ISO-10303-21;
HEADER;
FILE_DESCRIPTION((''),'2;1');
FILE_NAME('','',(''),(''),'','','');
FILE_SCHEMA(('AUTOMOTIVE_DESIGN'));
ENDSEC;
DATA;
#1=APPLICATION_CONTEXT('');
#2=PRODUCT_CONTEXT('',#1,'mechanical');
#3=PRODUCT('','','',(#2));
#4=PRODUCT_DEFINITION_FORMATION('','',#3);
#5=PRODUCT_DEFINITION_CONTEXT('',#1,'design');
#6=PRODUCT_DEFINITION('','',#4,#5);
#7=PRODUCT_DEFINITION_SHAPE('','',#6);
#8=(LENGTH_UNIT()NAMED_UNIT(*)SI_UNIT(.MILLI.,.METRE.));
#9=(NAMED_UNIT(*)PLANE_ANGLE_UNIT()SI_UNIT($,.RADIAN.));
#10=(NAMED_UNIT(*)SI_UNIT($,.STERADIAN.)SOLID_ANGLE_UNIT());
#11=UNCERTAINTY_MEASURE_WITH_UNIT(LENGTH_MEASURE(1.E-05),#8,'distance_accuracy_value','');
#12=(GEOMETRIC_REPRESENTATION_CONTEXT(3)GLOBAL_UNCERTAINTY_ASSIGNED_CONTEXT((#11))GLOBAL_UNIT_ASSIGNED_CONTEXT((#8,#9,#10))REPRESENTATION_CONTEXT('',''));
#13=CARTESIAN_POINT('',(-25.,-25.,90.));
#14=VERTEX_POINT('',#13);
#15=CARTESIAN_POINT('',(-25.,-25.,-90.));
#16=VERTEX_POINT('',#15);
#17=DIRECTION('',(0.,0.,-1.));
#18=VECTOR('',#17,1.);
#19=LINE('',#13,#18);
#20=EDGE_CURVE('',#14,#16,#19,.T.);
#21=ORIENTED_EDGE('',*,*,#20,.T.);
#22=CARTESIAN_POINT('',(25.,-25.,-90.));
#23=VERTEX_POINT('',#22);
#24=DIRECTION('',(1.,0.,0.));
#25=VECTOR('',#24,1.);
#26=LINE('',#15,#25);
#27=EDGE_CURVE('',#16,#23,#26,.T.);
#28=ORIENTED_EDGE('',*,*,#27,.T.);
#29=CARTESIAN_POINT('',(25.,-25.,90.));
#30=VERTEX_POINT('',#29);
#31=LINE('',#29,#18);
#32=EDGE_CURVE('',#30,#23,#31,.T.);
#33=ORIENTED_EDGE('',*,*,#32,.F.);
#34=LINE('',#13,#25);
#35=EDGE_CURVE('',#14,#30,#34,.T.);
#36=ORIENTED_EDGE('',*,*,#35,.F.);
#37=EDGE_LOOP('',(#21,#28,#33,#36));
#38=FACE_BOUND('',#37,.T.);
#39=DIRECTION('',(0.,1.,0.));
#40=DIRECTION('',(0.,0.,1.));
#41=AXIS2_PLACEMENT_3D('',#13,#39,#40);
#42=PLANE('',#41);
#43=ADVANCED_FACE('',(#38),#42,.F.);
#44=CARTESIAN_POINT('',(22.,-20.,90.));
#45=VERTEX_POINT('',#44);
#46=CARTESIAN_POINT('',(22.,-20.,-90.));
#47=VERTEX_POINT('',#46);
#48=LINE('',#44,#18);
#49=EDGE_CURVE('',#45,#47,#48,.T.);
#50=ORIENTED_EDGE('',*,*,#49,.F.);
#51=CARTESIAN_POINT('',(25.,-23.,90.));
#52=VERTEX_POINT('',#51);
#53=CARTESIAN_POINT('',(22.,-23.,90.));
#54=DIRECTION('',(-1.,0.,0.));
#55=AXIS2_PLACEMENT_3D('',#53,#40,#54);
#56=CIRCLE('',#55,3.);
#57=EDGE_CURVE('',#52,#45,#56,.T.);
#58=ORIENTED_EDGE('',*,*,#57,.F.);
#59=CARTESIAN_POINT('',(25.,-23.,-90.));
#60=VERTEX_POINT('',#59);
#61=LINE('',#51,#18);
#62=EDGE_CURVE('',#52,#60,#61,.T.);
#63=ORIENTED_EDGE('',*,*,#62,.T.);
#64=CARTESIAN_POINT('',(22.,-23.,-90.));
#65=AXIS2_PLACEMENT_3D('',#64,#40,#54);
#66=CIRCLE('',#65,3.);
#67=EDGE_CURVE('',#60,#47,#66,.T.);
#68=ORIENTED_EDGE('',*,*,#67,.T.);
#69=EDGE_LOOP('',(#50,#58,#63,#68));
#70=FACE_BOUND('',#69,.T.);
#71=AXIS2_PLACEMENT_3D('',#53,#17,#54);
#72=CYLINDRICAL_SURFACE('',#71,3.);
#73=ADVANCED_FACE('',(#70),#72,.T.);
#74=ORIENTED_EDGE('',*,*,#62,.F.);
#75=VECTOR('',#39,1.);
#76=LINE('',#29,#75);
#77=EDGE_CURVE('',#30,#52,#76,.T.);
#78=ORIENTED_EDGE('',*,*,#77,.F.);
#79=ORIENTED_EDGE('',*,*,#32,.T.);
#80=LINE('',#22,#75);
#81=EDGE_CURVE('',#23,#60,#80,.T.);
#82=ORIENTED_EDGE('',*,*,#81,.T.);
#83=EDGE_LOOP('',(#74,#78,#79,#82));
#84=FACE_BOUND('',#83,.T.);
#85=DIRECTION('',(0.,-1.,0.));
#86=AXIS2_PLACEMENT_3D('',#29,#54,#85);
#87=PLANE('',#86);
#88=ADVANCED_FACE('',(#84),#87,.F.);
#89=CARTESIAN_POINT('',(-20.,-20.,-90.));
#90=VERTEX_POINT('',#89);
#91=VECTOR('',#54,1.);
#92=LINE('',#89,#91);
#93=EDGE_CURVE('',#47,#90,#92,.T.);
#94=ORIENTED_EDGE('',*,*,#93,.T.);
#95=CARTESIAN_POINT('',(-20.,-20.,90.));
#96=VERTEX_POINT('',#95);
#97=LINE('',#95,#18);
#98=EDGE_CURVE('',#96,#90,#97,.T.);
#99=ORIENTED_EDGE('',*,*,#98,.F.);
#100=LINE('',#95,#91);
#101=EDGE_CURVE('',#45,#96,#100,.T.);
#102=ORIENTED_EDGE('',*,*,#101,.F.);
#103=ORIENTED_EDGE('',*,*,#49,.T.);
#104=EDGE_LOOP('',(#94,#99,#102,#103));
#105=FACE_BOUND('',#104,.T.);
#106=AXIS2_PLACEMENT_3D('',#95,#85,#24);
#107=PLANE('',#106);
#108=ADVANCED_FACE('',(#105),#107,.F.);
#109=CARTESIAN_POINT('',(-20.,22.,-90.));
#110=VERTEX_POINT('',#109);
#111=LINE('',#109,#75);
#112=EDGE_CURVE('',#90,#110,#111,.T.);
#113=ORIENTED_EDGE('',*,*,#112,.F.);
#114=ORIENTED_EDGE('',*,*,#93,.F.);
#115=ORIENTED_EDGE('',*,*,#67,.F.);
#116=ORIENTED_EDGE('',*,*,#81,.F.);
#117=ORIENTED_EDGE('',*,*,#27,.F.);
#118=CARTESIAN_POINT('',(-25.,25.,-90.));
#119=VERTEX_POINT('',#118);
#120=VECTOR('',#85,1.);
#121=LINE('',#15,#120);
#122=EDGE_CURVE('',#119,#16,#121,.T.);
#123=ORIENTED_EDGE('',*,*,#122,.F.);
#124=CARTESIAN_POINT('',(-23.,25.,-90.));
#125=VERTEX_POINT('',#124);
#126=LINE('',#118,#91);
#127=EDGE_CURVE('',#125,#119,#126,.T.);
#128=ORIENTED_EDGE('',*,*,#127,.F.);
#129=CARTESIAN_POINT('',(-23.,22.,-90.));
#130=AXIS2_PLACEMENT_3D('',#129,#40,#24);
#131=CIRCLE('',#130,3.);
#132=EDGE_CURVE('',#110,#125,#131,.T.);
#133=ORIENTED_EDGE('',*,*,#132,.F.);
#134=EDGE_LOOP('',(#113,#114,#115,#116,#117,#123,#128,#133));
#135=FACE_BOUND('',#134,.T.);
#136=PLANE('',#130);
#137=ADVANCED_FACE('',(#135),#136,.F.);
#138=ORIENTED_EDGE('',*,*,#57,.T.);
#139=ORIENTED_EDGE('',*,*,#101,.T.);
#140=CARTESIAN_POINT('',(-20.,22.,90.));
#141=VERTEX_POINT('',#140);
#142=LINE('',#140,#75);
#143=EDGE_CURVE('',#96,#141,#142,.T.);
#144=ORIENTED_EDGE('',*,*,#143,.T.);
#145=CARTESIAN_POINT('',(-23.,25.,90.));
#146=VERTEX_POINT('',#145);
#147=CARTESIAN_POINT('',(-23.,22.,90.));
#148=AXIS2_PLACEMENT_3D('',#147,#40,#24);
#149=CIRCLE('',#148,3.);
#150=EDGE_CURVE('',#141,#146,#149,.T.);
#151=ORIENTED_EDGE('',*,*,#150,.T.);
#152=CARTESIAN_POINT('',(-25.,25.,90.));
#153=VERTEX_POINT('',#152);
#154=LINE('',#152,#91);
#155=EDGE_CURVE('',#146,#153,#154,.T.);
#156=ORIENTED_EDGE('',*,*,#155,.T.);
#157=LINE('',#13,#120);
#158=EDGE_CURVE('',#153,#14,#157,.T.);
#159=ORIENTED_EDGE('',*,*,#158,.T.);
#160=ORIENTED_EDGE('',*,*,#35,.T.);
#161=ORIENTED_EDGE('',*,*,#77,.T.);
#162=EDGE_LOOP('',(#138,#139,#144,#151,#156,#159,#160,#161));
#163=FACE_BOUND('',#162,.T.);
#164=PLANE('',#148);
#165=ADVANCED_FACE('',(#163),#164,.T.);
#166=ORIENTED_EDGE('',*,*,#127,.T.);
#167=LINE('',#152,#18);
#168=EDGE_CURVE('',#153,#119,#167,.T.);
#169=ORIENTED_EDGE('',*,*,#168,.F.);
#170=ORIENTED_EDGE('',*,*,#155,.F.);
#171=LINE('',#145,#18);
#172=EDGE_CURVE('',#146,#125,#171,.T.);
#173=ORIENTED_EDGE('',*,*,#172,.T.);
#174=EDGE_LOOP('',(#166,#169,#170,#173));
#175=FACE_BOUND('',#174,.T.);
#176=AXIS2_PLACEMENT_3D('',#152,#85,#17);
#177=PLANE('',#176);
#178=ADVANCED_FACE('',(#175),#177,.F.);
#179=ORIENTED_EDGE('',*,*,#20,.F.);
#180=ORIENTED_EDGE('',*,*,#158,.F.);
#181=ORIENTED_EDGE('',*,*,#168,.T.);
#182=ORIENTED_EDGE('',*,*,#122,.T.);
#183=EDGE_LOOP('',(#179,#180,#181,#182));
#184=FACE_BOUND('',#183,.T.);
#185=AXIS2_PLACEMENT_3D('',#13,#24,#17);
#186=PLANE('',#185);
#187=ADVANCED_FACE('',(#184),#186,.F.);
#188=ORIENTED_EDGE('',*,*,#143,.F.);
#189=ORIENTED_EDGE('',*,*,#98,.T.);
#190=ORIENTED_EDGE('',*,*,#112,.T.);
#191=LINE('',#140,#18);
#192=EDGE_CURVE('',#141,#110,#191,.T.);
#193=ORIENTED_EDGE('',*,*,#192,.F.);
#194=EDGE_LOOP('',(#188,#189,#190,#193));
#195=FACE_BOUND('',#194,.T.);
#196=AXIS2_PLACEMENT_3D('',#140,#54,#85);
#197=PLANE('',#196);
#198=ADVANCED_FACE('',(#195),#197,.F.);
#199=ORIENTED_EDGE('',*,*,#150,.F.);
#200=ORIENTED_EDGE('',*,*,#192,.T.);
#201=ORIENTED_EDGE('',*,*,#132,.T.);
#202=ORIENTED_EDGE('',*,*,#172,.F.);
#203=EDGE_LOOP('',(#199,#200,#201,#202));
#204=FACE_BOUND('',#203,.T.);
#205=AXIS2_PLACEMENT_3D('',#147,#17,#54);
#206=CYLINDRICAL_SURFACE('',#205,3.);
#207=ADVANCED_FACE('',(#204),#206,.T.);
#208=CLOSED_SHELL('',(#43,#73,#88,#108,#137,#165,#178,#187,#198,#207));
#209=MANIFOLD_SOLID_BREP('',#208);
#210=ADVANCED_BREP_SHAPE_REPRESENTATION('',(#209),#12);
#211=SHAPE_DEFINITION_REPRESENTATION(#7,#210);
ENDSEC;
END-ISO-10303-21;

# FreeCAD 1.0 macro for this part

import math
import FreeCAD as App
import Part
import Sketcher

V = App.Vector
Q = App.Units.Quantity

doc = App.newDocument("Part")
params = doc.addObject("Spreadsheet::Sheet", "Params")
for row, (alias, value) in enumerate([
    ("sketch1_radius", "3 mm"),
    ("sketch1_width", "2 mm"),
    ("sketch1_width2", "50 mm"),
    ("pad1_length", "180 mm"),
], start=1):
    params.set(f"A{row}", alias)
    params.set(f"B{row}", "=" + value)
    params.setAlias(f"B{row}", alias)

body = doc.addObject("PartDesign::Body", "Body")

sketch1 = body.newObject("Sketcher::SketchObject", "Sketch")
sketch1.AttachmentSupport = (doc.getObject("XY_Plane"), [""])
sketch1.MapMode = "FlatFace"
sketch1.addGeometry(Part.LineSegment(V(-20, -20, 0), V(-20, 22, 0)), False)
sketch1.addGeometry(Part.ArcOfCircle(Part.Circle(V(-23, 22, 0), V(0, 0, 1), 3), math.radians(0), math.radians(90)), False)
sketch1.addGeometry(Part.LineSegment(V(-23, 25, 0), V(-25, 25, 0)), False)
sketch1.addGeometry(Part.LineSegment(V(-25, 25, 0), V(-25, -25, 0)), False)
sketch1.addGeometry(Part.LineSegment(V(-25, -25, 0), V(25, -25, 0)), False)
sketch1.addGeometry(Part.LineSegment(V(25, -25, 0), V(25, -23, 0)), False)
sketch1.addGeometry(Part.ArcOfCircle(Part.Circle(V(22, -23, 0), V(0, 0, 1), 3), math.radians(0), math.radians(90)), False)
sketch1.addGeometry(Part.LineSegment(V(22, -20, 0), V(-20, -20, 0)), False)
sketch1.addConstraint(Sketcher.Constraint("Tangent", 0, 2, 1, 1))
sketch1.addConstraint(Sketcher.Constraint("Tangent", 1, 2, 2, 1))
sketch1.addConstraint(Sketcher.Constraint("Coincident", 2, 2, 3, 1))
sketch1.addConstraint(Sketcher.Constraint("Coincident", 3, 2, 4, 1))
sketch1.addConstraint(Sketcher.Constraint("Coincident", 4, 2, 5, 1))
sketch1.addConstraint(Sketcher.Constraint("Tangent", 5, 2, 6, 1))
sketch1.addConstraint(Sketcher.Constraint("Tangent", 6, 2, 7, 1))
sketch1.addConstraint(Sketcher.Constraint("Coincident", 7, 2, 0, 1))
sketch1.addConstraint(Sketcher.Constraint("Vertical", 0))
sketch1.addConstraint(Sketcher.Constraint("Horizontal", 2))
sketch1.addConstraint(Sketcher.Constraint("Vertical", 3))
sketch1.addConstraint(Sketcher.Constraint("Horizontal", 4))
sketch1.addConstraint(Sketcher.Constraint("Vertical", 5))
sketch1.addConstraint(Sketcher.Constraint("Horizontal", 7))
sketch1.addConstraint(Sketcher.Constraint("Equal", 1, 6))
sketch1.addConstraint(Sketcher.Constraint("Symmetric", 2, 2, 4, 2, -1, 1))
sketch1.addConstraint(Sketcher.Constraint("Equal", 7, 0))
sketch1.addConstraint(Sketcher.Constraint("Equal", 4, 3))
sketch1.addConstraint(Sketcher.Constraint("Radius", 1, Q("3 mm")))
sketch1.addConstraint(Sketcher.Constraint("DistanceX", 2, 2, 2, 1, Q("2 mm")))
sketch1.addConstraint(Sketcher.Constraint("DistanceX", 4, 1, 4, 2, Q("50 mm")))
sketch1.setExpression("Constraints[18]", "Params.sketch1_radius")
sketch1.setExpression("Constraints[19]", "Params.sketch1_width")
sketch1.setExpression("Constraints[20]", "Params.sketch1_width2")
pad1 = body.newObject("PartDesign::Pad", "Pad")
pad1.Profile = sketch1
pad1.setExpression("Length", "Params.pad1_length")
pad1.Midplane = True

doc.recompute()
